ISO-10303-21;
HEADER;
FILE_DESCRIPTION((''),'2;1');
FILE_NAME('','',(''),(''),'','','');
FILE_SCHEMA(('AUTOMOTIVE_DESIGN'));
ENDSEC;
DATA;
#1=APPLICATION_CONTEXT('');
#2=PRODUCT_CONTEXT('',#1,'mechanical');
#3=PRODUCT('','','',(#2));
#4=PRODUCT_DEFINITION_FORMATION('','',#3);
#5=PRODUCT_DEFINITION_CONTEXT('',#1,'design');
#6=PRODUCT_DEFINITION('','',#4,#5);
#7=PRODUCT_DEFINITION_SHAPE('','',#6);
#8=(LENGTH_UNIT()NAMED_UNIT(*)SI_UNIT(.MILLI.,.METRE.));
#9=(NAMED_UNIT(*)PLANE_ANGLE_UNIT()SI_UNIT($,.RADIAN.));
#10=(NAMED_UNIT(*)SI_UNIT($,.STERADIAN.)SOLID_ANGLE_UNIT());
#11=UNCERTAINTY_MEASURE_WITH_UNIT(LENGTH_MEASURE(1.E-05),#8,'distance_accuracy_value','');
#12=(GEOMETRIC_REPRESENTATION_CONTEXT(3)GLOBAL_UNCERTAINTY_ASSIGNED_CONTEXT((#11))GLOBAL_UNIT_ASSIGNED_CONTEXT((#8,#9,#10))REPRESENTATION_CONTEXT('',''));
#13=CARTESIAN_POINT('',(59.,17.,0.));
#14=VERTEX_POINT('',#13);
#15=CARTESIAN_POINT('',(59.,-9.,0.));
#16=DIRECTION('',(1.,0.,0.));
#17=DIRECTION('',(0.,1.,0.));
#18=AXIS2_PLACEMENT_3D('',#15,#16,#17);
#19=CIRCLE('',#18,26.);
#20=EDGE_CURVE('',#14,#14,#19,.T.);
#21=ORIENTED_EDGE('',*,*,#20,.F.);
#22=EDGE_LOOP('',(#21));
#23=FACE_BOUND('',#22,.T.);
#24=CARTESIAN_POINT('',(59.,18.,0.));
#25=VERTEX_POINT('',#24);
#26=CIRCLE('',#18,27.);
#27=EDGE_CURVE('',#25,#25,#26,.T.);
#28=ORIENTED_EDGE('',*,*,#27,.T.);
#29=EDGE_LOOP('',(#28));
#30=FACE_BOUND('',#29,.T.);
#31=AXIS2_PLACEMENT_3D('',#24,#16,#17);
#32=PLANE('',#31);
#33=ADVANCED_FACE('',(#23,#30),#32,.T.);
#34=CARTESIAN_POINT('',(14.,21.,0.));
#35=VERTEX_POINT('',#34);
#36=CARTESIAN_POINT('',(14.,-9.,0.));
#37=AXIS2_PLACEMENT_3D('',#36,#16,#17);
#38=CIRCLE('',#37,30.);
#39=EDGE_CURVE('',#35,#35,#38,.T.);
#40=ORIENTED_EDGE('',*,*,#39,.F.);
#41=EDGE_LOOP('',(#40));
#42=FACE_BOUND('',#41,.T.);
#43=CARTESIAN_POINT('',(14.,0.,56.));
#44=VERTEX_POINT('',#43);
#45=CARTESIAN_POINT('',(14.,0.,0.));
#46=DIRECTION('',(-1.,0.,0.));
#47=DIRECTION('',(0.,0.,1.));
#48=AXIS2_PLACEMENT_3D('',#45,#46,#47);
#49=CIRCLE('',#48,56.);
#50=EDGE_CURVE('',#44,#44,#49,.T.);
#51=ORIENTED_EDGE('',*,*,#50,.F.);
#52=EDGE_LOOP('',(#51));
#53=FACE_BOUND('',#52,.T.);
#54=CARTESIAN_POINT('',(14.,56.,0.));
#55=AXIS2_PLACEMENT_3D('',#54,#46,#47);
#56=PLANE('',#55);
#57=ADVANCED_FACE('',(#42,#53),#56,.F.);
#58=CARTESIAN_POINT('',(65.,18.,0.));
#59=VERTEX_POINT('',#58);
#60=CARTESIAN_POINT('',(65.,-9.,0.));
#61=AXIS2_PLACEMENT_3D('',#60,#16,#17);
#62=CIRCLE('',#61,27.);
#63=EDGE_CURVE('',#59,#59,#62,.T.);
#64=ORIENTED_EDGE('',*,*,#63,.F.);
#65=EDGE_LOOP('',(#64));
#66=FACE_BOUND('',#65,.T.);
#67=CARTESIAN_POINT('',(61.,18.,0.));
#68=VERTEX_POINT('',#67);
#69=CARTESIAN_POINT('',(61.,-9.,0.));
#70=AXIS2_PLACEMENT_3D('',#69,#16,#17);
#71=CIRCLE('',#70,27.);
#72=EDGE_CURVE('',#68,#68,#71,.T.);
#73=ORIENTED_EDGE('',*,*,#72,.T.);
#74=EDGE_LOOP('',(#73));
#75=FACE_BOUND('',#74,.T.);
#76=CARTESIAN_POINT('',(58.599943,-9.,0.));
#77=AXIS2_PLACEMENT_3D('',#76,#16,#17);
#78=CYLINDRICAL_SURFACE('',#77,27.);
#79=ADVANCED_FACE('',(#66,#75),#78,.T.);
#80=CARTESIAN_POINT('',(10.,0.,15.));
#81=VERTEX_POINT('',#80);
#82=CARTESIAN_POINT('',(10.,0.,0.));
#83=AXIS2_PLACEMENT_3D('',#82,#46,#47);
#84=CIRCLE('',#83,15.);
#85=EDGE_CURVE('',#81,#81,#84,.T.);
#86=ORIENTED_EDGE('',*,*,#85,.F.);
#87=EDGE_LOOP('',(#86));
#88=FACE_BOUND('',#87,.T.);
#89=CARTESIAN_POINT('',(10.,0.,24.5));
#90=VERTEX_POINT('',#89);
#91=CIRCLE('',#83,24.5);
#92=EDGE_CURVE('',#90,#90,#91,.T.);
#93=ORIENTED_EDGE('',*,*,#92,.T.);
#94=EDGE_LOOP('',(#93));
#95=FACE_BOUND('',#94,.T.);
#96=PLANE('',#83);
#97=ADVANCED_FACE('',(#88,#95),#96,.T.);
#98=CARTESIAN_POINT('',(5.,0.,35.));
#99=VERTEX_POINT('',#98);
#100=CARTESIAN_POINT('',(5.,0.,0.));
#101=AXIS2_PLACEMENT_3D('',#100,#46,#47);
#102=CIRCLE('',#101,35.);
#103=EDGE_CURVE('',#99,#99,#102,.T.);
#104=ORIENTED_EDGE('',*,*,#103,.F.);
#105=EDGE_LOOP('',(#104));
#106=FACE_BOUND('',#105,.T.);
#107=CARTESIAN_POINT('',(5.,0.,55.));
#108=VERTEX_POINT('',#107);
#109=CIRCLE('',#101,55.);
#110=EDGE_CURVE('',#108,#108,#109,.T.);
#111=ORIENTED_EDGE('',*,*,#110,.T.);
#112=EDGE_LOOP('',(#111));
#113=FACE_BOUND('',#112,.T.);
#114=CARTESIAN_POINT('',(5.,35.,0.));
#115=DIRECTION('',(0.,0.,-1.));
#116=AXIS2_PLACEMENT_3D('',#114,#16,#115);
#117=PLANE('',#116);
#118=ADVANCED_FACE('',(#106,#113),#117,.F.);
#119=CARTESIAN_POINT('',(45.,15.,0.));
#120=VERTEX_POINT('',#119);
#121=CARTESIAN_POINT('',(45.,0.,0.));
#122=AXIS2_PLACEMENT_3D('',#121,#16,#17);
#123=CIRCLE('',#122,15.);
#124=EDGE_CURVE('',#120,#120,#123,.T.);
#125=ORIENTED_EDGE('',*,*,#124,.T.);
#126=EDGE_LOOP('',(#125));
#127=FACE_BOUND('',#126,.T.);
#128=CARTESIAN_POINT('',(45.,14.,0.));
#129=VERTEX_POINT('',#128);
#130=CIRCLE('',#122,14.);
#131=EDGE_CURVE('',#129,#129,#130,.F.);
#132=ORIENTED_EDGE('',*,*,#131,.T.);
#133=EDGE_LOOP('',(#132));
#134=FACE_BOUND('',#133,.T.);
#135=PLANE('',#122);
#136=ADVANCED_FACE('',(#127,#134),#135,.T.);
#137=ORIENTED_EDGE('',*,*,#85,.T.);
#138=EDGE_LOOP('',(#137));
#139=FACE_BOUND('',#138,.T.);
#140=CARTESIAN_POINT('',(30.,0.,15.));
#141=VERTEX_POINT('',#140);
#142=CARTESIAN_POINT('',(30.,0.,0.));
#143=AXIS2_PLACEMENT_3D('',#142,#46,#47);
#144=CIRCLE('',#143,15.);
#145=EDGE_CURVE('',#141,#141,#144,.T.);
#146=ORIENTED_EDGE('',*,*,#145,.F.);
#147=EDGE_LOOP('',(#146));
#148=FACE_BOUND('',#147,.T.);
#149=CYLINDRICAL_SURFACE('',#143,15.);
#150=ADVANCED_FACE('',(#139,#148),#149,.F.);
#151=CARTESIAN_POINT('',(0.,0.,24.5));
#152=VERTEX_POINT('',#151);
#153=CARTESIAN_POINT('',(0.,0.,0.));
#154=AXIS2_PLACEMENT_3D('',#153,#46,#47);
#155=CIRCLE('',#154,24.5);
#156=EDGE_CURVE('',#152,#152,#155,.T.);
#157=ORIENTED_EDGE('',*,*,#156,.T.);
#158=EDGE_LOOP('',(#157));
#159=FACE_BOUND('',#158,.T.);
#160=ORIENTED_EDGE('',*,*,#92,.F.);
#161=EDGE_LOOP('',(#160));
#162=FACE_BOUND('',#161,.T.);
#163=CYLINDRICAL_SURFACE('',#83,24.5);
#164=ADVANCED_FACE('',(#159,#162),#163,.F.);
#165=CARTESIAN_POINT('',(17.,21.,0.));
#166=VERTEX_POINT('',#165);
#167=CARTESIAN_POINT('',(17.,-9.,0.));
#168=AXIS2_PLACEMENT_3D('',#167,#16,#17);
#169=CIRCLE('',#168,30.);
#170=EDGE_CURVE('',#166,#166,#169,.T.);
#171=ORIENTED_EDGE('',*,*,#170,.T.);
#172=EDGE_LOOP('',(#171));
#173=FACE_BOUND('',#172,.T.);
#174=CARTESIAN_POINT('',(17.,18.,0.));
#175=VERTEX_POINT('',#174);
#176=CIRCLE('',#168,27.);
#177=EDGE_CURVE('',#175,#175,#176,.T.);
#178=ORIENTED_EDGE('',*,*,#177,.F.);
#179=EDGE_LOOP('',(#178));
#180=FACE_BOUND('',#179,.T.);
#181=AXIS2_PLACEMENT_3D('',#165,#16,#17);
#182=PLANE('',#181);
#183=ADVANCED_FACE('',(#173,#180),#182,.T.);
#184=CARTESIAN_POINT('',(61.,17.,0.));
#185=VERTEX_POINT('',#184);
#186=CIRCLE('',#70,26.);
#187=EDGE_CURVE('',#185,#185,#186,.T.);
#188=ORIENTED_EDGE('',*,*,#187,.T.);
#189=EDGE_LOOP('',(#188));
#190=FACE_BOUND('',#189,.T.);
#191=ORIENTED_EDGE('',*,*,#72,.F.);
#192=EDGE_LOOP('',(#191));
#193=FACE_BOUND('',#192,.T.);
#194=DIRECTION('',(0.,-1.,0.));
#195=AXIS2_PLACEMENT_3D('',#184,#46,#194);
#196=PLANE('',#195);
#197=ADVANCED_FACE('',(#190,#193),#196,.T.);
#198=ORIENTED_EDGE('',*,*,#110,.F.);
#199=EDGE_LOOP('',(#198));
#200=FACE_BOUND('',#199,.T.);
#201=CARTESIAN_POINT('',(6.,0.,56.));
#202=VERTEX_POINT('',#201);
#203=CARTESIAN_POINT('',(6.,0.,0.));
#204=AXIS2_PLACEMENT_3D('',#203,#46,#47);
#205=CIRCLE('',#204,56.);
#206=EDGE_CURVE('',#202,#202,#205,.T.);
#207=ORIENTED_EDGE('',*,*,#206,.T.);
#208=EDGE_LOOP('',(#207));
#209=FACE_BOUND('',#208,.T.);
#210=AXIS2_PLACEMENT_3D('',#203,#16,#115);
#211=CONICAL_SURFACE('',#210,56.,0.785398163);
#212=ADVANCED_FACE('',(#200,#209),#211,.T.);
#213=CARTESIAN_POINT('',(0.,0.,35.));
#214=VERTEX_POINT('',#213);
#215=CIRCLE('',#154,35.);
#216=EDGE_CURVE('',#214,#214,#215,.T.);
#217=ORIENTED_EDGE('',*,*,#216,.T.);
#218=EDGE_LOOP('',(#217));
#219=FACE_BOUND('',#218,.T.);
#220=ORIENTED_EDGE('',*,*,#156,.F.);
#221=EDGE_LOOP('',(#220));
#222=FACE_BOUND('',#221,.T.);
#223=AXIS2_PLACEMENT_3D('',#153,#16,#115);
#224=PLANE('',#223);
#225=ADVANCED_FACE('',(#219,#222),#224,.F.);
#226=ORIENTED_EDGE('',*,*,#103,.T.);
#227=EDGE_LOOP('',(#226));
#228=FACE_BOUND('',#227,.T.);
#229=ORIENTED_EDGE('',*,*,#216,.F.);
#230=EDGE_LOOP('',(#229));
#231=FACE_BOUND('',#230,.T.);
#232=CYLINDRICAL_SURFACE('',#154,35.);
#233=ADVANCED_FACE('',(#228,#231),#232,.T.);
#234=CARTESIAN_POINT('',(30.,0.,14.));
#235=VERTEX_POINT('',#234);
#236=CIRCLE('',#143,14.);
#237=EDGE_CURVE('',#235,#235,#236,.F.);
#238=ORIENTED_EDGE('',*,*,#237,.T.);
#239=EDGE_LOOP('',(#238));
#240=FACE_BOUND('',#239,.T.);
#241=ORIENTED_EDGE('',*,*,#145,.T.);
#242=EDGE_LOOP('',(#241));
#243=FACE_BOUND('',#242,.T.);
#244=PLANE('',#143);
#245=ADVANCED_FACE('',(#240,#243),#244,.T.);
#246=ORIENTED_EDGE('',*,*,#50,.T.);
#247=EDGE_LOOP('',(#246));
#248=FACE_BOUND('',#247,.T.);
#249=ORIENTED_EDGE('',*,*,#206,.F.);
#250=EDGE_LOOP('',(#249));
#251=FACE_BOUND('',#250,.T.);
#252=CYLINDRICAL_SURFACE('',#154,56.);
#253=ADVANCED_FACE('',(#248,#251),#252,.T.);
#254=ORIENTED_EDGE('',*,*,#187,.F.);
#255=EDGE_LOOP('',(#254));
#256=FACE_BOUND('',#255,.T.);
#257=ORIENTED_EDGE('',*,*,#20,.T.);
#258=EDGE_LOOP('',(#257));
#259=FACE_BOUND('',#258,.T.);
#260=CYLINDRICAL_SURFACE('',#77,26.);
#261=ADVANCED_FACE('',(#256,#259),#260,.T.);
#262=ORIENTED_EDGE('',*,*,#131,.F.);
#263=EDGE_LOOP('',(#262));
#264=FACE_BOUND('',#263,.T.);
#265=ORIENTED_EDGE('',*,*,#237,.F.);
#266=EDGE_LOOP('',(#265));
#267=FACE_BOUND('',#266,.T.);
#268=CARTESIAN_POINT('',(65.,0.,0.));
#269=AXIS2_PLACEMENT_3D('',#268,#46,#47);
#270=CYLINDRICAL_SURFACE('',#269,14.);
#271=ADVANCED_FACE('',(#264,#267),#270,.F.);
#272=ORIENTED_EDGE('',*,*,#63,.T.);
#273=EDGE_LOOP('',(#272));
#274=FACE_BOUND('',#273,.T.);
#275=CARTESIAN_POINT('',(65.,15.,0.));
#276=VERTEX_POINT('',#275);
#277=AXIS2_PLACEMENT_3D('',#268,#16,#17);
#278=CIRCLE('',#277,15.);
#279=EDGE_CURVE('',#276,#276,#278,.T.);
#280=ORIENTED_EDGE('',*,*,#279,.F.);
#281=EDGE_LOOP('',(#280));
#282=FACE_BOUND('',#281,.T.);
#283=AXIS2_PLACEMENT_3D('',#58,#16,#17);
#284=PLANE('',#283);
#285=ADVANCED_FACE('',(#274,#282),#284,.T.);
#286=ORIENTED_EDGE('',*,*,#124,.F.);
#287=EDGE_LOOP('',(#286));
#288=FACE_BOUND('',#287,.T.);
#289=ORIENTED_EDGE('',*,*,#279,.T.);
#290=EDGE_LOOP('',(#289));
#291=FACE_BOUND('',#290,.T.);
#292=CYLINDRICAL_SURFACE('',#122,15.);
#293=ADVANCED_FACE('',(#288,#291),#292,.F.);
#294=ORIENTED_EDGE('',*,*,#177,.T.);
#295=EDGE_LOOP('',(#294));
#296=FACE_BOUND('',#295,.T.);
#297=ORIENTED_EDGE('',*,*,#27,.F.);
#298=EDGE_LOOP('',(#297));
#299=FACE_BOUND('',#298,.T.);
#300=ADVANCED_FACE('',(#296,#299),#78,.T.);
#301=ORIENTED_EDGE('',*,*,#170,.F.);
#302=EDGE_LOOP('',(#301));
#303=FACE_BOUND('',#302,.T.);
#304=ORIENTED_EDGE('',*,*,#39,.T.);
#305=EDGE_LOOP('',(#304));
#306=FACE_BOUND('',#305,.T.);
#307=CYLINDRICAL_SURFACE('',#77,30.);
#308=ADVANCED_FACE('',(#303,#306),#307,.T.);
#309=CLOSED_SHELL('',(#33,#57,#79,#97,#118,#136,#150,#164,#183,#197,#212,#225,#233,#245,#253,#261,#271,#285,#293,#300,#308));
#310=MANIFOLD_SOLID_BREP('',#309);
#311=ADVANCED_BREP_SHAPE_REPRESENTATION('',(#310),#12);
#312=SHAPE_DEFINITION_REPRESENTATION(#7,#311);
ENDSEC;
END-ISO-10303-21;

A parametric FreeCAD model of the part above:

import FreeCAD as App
import Part
import Sketcher

V = App.Vector
Q = App.Units.Quantity

doc = App.newDocument("Part")
body = doc.addObject("PartDesign::Body", "Body")

# Sketch on XY plane
sketch1 = body.newObject("Sketcher::SketchObject", "Sketch")
sketch1.AttachmentSupport = (doc.getObject("XY_Plane"), [""])
sketch1.MapMode = "FlatFace"
sketch1.addGeometry([
    Part.LineSegment(V(0, 35, 0), V(0, 0, 0)),  # 0
    Part.LineSegment(V(0, 0, 0), V(14, 0, 0)),  # 1
    Part.LineSegment(V(14, 0, 0), V(14, 56, 0)),  # 2
    Part.LineSegment(V(14, 56, 0), V(6, 56, 0)),  # 3
    Part.LineSegment(V(6, 56, 0), V(5, 55, 0)),  # 4
    Part.LineSegment(V(5, 55, 0), V(5, 35, 0)),  # 5
    Part.LineSegment(V(5, 35, 0), V(0, 35, 0)),  # 6
], False)
sketch1.addConstraint([
    Sketcher.Constraint("Coincident", 0, 2, 1, 1),
    Sketcher.Constraint("Coincident", 1, 2, 2, 1),
    Sketcher.Constraint("Coincident", 2, 2, 3, 1),
    Sketcher.Constraint("Coincident", 3, 2, 4, 1),
    Sketcher.Constraint("Coincident", 4, 2, 5, 1),
    Sketcher.Constraint("Coincident", 5, 2, 6, 1),
    Sketcher.Constraint("Coincident", 6, 2, 0, 1),
    Sketcher.Constraint("Vertical", 0),
    Sketcher.Constraint("Horizontal", 1),
    Sketcher.Constraint("Vertical", 2),
    Sketcher.Constraint("Horizontal", 3),
    Sketcher.Constraint("Vertical", 5),
    Sketcher.Constraint("Horizontal", 6),
    Sketcher.Constraint("Coincident", 0, 2, -1, 1),
    Sketcher.Constraint("DistanceX", 1, 1, 1, 2, Q("14 mm")),
    Sketcher.Constraint("DistanceX", 3, 2, 3, 1, Q("8 mm")),
    Sketcher.Constraint("DistanceX", 6, 2, 6, 1, Q("5 mm")),
    Sketcher.Constraint("DistanceY", 0, 2, 0, 1, Q("35 mm")),
    Sketcher.Constraint("DistanceY", 2, 1, 2, 2, Q("56 mm")),
    Sketcher.Constraint("DistanceY", 5, 2, 5, 1, Q("20 mm")),
])
revolution = body.newObject("PartDesign::Revolution", "Revolution")
revolution.Profile = sketch1
revolution.ReferenceAxis = (sketch1, ["H_Axis"])
revolution.Angle = 360

# Sketch on YZ plane
sketch2 = body.newObject("Sketcher::SketchObject", "Sketch001")
sketch2.AttachmentSupport = (doc.getObject("YZ_Plane"), [""])
sketch2.MapMode = "FlatFace"
sketch2.addGeometry(Part.Circle(V(0, 0, 0), V(0, 0, 1), 24.5), False)
sketch2.addConstraint([
    Sketcher.Constraint("Coincident", 0, 3, -1, 1),
    Sketcher.Constraint("Diameter", 0, Q("49 mm")),
])
pocket1 = body.newObject("PartDesign::Pocket", "Pocket")
pocket1.Profile = sketch2
pocket1.Length = 10
pocket1.Reversed = True

# Sketch on XY plane
sketch3 = body.newObject("Sketcher::SketchObject", "Sketch002")
sketch3.AttachmentSupport = (doc.getObject("XY_Plane"), [""])
sketch3.MapMode = "FlatFace"
sketch3.addGeometry([
    Part.LineSegment(V(17, 21, 0), V(14, 21, 0)),  # 0
    Part.LineSegment(V(14, 21, 0), V(14, -9, 0)),  # 1
    Part.LineSegment(V(14, -9, 0), V(65, -9, 0)),  # 2
    Part.LineSegment(V(65, -9, 0), V(65, 18, 0)),  # 3
    Part.LineSegment(V(65, 18, 0), V(61, 18, 0)),  # 4
    Part.LineSegment(V(61, 18, 0), V(61, 17, 0)),  # 5
    Part.LineSegment(V(61, 17, 0), V(59, 17, 0)),  # 6
    Part.LineSegment(V(59, 17, 0), V(59, 18, 0)),  # 7
    Part.LineSegment(V(59, 18, 0), V(17, 18, 0)),  # 8
    Part.LineSegment(V(17, 18, 0), V(17, 21, 0)),  # 9
], False)
sketch3.addGeometry(Part.LineSegment(V(65, -9, 0), V(14, -9, 0)), True)  # axis
sketch3.addConstraint([
    Sketcher.Constraint("Coincident", 0, 2, 1, 1),
    Sketcher.Constraint("Coincident", 1, 2, 2, 1),
    Sketcher.Constraint("Coincident", 2, 2, 3, 1),
    Sketcher.Constraint("Coincident", 3, 2, 4, 1),
    Sketcher.Constraint("Coincident", 4, 2, 5, 1),
    Sketcher.Constraint("Coincident", 5, 2, 6, 1),
    Sketcher.Constraint("Coincident", 6, 2, 7, 1),
    Sketcher.Constraint("Coincident", 7, 2, 8, 1),
    Sketcher.Constraint("Coincident", 8, 2, 9, 1),
    Sketcher.Constraint("Coincident", 9, 2, 0, 1),
    Sketcher.Constraint("Horizontal", 0),
    Sketcher.Constraint("Vertical", 1),
    Sketcher.Constraint("Horizontal", 2),
    Sketcher.Constraint("Vertical", 3),
    Sketcher.Constraint("Horizontal", 4),
    Sketcher.Constraint("Vertical", 5),
    Sketcher.Constraint("Horizontal", 6),
    Sketcher.Constraint("Vertical", 7),
    Sketcher.Constraint("Horizontal", 8),
    Sketcher.Constraint("Vertical", 9),
    Sketcher.Constraint("Horizontal", 10),
    Sketcher.Constraint("Coincident", 10, 1, 2, 2),
    Sketcher.Constraint("Horizontal", 4, 2, 7, 2),
    Sketcher.Constraint("Vertical", 0, 2, 10, 2),
    Sketcher.Constraint("Equal", 0, 9),
    Sketcher.Constraint("DistanceX", 0, 2, 0, 1, Q("3 mm")),
    Sketcher.Constraint("DistanceX", 2, 1, 2, 2, Q("51 mm")),
    Sketcher.Constraint("DistanceX", 4, 2, 4, 1, Q("4 mm")),
    Sketcher.Constraint("DistanceX", 6, 2, 6, 1, Q("2 mm")),
    Sketcher.Constraint("DistanceY", 1, 2, 1, 1, Q("30 mm")),
    Sketcher.Constraint("DistanceY", 5, 2, 5, 1, Q("1 mm")),
    Sketcher.Constraint("DistanceX", -1, 1, 0, 2, Q("14 mm")),
    Sketcher.Constraint("DistanceY", -1, 1, 0, 2, Q("21 mm")),
])
revolution2 = body.newObject("PartDesign::Revolution", "Revolution001")
revolution2.Profile = sketch3
revolution2.ReferenceAxis = (sketch3, ["Axis0"])
revolution2.Angle = 360

# Sketch on YZ plane
sketch4 = body.newObject("Sketcher::SketchObject", "Sketch003")
sketch4.AttachmentSupport = (doc.getObject("YZ_Plane"), [""])
sketch4.MapMode = "FlatFace"
sketch4.AttachmentOffset = App.Placement(V(0, 0, 10), App.Rotation())
sketch4.addGeometry(Part.Circle(V(0, 0, 0), V(0, 0, 1), 14), False)
sketch4.addConstraint([
    Sketcher.Constraint("Coincident", 0, 3, -1, 1),
    Sketcher.Constraint("Diameter", 0, Q("28 mm")),
])
pocket2 = body.newObject("PartDesign::Pocket", "Pocket001")
pocket2.Profile = sketch4
pocket2.Type = "ThroughAll"
pocket2.Reversed = True

# Sketch on YZ plane
sketch5 = body.newObject("Sketcher::SketchObject", "Sketch004")
sketch5.AttachmentSupport = (doc.getObject("YZ_Plane"), [""])
sketch5.MapMode = "FlatFace"
sketch5.AttachmentOffset = App.Placement(V(0, 0, 10), App.Rotation())
sketch5.addGeometry(Part.Circle(V(0, 0, 0), V(0, 0, 1), 15), False)
sketch5.addConstraint([
    Sketcher.Constraint("Coincident", 0, 3, -1, 1),
    Sketcher.Constraint("Diameter", 0, Q("30 mm")),
])
pocket3 = body.newObject("PartDesign::Pocket", "Pocket002")
pocket3.Profile = sketch5
pocket3.Length = 20
pocket3.Reversed = True

# Sketch on YZ plane
sketch6 = body.newObject("Sketcher::SketchObject", "Sketch005")
sketch6.AttachmentSupport = (doc.getObject("YZ_Plane"), [""])
sketch6.MapMode = "FlatFace"
sketch6.AttachmentOffset = App.Placement(V(0, 0, 45), App.Rotation())
sketch6.addGeometry(Part.Circle(V(0, 0, 0), V(0, 0, 1), 15), False)
sketch6.addConstraint([
    Sketcher.Constraint("Coincident", 0, 3, -1, 1),
    Sketcher.Constraint("Diameter", 0, Q("30 mm")),
])
pocket4 = body.newObject("PartDesign::Pocket", "Pocket003")
pocket4.Profile = sketch6
pocket4.Length = 20
pocket4.Reversed = True

doc.recompute()
